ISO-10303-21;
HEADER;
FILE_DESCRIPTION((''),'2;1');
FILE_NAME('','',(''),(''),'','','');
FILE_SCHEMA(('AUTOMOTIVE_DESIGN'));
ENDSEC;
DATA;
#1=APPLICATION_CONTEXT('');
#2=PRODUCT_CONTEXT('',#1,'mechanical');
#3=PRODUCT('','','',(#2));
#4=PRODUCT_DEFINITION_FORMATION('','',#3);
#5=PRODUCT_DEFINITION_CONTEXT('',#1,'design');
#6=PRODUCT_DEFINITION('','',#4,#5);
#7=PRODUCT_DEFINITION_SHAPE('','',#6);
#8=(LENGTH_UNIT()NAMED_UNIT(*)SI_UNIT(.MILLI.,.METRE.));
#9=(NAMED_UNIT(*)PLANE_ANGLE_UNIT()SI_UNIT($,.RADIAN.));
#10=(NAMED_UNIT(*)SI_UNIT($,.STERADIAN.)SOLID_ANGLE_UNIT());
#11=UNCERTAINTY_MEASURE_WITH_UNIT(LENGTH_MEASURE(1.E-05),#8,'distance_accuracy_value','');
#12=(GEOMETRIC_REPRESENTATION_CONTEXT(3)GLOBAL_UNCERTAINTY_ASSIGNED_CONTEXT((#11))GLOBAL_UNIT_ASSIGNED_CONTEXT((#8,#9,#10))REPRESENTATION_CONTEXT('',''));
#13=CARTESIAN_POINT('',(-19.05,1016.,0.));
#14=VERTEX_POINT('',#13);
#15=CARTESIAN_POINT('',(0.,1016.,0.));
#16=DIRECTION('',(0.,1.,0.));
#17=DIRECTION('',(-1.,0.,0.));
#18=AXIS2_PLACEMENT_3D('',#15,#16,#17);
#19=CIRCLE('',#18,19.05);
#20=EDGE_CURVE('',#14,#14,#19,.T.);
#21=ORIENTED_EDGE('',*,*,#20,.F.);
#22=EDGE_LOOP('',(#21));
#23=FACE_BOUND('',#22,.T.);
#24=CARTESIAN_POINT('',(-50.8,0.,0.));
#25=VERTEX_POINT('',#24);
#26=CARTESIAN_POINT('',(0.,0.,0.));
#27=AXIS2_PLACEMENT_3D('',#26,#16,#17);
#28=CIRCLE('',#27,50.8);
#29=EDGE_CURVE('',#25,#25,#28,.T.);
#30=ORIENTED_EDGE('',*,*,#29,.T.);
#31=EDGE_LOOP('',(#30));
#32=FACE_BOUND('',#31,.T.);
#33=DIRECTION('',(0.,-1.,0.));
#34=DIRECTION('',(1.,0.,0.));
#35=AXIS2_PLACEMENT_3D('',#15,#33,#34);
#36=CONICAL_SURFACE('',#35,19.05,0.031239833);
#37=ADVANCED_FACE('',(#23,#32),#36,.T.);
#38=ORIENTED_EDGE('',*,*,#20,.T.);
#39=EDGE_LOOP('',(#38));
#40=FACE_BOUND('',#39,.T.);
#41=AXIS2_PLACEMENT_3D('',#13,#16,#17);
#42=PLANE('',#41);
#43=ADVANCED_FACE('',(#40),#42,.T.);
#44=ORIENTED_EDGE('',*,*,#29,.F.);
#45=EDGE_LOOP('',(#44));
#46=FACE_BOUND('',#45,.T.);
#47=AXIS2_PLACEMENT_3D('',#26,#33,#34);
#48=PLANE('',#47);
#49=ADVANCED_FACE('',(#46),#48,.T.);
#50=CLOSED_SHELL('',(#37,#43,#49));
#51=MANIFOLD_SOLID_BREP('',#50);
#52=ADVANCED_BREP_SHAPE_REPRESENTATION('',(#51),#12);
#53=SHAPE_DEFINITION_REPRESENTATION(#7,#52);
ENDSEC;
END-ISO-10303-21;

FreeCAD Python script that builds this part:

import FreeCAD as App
import Part
import Sketcher

V = App.Vector
Q = App.Units.Quantity


def add_polygon(sketch, points):
    """Adds a closed chain of lines whose ends are joined by coincident constraints."""
    first, n = sketch.GeometryCount, len(points)
    for a, b in zip(points, points[1:] + points[:1]):
        sketch.addGeometry(Part.LineSegment(App.Vector(*a, 0), App.Vector(*b, 0)), False)
    for i in range(n):
        sketch.addConstraint(Sketcher.Constraint("Coincident", first + i, 2, first + (i + 1) % n, 1))

doc = App.newDocument("Part")
body = doc.addObject("PartDesign::Body", "Body")

sketch1 = body.newObject("Sketcher::SketchObject", "Sketch")
sketch1.AttachmentSupport = (doc.getObject("XY_Plane"), [""])
sketch1.MapMode = "FlatFace"
add_polygon(sketch1, [(-51, 0), (0, 0), (0, 1016), (-19, 1016)])
sketch1.addConstraint(Sketcher.Constraint("Horizontal", 0))
sketch1.addConstraint(Sketcher.Constraint("Vertical", 1))
sketch1.addConstraint(Sketcher.Constraint("Horizontal", 2))
sketch1.addConstraint(Sketcher.Constraint("Coincident", 0, 2, -1, 1))
sketch1.addConstraint(Sketcher.Constraint("DistanceX", 0, 1, 0, 2, Q("2 in")))
sketch1.addConstraint(Sketcher.Constraint("DistanceY", 1, 1, 1, 2, Q("40 in")))
sketch1.addConstraint(Sketcher.Constraint("DistanceX", 2, 2, 2, 1, Q("0.75 in")))
revolution = body.newObject("PartDesign::Revolution", "Revolution")
revolution.Profile = sketch1
revolution.ReferenceAxis = (sketch1, ["V_Axis"])
revolution.Angle = 360

doc.recompute()
